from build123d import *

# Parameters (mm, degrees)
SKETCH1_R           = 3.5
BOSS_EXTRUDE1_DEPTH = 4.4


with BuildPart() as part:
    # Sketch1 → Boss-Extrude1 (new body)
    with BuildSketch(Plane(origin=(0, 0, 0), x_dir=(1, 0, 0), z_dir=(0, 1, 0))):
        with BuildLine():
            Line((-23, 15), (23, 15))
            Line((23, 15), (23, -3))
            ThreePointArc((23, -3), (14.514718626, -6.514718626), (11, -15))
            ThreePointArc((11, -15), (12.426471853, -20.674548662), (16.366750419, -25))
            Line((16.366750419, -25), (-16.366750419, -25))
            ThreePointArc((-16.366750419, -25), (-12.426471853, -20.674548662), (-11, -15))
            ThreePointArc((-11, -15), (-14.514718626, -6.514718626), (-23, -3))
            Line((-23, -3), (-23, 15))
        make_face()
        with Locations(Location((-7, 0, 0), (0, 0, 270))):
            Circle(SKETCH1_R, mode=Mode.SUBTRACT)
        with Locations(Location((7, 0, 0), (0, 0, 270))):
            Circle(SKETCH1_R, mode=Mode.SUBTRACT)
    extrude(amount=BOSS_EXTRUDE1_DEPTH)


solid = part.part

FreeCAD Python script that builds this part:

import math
import FreeCAD as App
import Part
import Sketcher
Q = App.Units.Quantity

doc = App.newDocument("Part")
params = doc.addObject("Spreadsheet::Sheet", "Params")
for row, (alias, value) in enumerate([
    ("sketch1_diameter", "7 mm"),
    ("sketch1_radius", "12 mm"),
    ("sketch1_width", "46 mm"),
    ("sketch1_height", "18 mm"),
    ("pad1_length", "4.4 mm"),
], start=1):
    params.set(f"A{row}", alias)
    params.set(f"B{row}", "=" + value)
    params.setAlias(f"B{row}", alias)

body = doc.addObject("PartDesign::Body", "Body")

# Sketch on XZ plane
sketch1 = doc.addObject("Sketcher::SketchObject", "Sketch")
body.addObject(sketch1)
sketch1.AttachmentSupport = (doc.XZ_Plane, [""])
sketch1.MapMode = "FlatFace"
sketch1.addGeometry([
    Part.LineSegment(App.Vector(23, -15, 0), App.Vector(-23, -15, 0)),  # 0
    Part.LineSegment(App.Vector(-23, -15, 0), App.Vector(-23, 3, 0)),  # 1
    Part.ArcOfCircle(Part.Circle(App.Vector(-23, 15, 0), App.Vector(0, 0, 1), 12), math.radians(-90), math.radians(0)),  # 2
    Part.ArcOfCircle(Part.Circle(App.Vector(-23, 15, 0), App.Vector(0, 0, 1), 12), math.radians(0), math.radians(56)),  # 3
    Part.LineSegment(App.Vector(-16.4, 25, 0), App.Vector(16.4, 25, 0)),  # 4
    Part.ArcOfCircle(Part.Circle(App.Vector(23, 15, 0), App.Vector(0, 0, 1), 12), math.radians(124), math.radians(180)),  # 5
    Part.ArcOfCircle(Part.Circle(App.Vector(23, 15, 0), App.Vector(0, 0, 1), 12), math.radians(-180), math.radians(-90)),  # 6
    Part.LineSegment(App.Vector(23, 3, 0), App.Vector(23, -15, 0)),  # 7
    Part.Circle(App.Vector(7, 0, 0), App.Vector(0, 0, 1), 3.5),  # 8
    Part.Circle(App.Vector(-7, 0, 0), App.Vector(0, 0, 1), 3.5),  # 9
], False)
sketch1.addConstraint([
    Sketcher.Constraint("Coincident", 0, 2, 1, 1),
    Sketcher.Constraint("Coincident", 1, 2, 2, 1),
    Sketcher.Constraint("Tangent", 2, 2, 3, 1),
    Sketcher.Constraint("Coincident", 3, 2, 4, 1),
    Sketcher.Constraint("Coincident", 4, 2, 5, 1),
    Sketcher.Constraint("Tangent", 5, 2, 6, 1),
    Sketcher.Constraint("Coincident", 6, 2, 7, 1),
    Sketcher.Constraint("Coincident", 7, 2, 0, 1),
    Sketcher.Constraint("Horizontal", 0),
    Sketcher.Constraint("Vertical", 1),
    Sketcher.Constraint("Horizontal", 4),
    Sketcher.Constraint("Vertical", 7),
    Sketcher.Constraint("Equal", 2, 3),
    Sketcher.Constraint("Equal", 3, 5),
    Sketcher.Constraint("Equal", 5, 6),
    Sketcher.Constraint("Equal", 8, 9),
    Sketcher.Constraint("Symmetric", 8, 3, 9, 3, -1, 1),
    Sketcher.Constraint("Symmetric", 2, 3, 5, 3, -2),
    Sketcher.Constraint("PointOnObject", 8, 3, -1),
    Sketcher.Constraint("Horizontal", 6, 3, 2, 2),
    Sketcher.Constraint("Horizontal", 2, 2, 5, 2),
    Sketcher.Constraint("Vertical", 3, 3, 0, 2),
    Sketcher.Constraint("Vertical", 5, 3, 6, 2),
    Sketcher.Constraint("Diameter", 8, Q("7 mm")),
    Sketcher.Constraint("Radius", 2, Q("12 mm")),
    Sketcher.Constraint("DistanceX", 0, 2, 0, 1, Q("46 mm")),
    Sketcher.Constraint("DistanceY", 1, 1, 1, 2, Q("18 mm")),
    Sketcher.Constraint("DistanceY", -1, 1, 2, 3, Q("15 mm")),
    Sketcher.Constraint("DistanceX", -1, 1, 8, 3, Q("7 mm")),
    Sketcher.Constraint("DistanceY", -1, 1, 3, 2, Q("25 mm")),
])
sketch1.setExpression("Constraints[23]", "Params.sketch1_diameter")
sketch1.setExpression("Constraints[24]", "Params.sketch1_radius")
sketch1.setExpression("Constraints[25]", "Params.sketch1_width")
sketch1.setExpression("Constraints[26]", "Params.sketch1_height")
pad1 = doc.addObject("PartDesign::Pad", "Pad")
body.addObject(pad1)
pad1.Profile = sketch1
pad1.setExpression("Length", "Params.pad1_length")
pad1.Reversed = True

doc.recompute()
